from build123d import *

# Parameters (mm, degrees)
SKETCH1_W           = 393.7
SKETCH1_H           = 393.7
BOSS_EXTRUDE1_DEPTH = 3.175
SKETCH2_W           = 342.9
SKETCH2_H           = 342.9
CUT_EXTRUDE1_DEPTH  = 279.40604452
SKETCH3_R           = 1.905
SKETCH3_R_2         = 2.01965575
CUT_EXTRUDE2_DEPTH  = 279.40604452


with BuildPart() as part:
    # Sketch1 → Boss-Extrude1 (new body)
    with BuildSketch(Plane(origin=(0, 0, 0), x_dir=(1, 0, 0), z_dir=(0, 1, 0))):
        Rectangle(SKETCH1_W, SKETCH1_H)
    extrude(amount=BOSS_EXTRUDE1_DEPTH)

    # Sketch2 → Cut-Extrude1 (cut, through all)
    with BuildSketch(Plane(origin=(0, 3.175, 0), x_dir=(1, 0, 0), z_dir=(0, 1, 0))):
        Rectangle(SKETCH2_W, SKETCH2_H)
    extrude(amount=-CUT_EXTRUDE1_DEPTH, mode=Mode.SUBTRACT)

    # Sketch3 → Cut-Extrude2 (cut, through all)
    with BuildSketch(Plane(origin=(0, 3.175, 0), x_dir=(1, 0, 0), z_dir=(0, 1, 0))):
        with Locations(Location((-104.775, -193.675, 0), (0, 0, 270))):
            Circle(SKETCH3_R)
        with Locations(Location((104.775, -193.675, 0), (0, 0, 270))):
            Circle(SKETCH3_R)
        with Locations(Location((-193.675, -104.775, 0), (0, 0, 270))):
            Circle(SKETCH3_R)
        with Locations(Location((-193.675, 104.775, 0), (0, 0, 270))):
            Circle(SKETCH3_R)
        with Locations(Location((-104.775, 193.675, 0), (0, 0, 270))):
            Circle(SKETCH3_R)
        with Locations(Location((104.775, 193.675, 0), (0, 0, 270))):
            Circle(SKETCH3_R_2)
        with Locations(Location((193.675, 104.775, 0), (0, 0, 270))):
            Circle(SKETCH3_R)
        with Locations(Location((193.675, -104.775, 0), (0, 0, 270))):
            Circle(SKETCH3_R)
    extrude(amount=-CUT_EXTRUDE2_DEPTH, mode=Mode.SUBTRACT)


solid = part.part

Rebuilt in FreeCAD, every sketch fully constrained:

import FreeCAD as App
import Part
import Sketcher

V = App.Vector
Q = App.Units.Quantity

doc = App.newDocument("Part")
body = doc.addObject("PartDesign::Body", "Body")

sketch1 = body.newObject("Sketcher::SketchObject", "Sketch")
sketch1.AttachmentSupport = (doc.getObject("XZ_Plane"), [""])
sketch1.MapMode = "FlatFace"
sketch1.addGeometry(Part.LineSegment(V(-197, -197, 0), V(-197, 197, 0)), False)
sketch1.addGeometry(Part.LineSegment(V(-197, 197, 0), V(197, 197, 0)), False)
sketch1.addGeometry(Part.LineSegment(V(197, 197, 0), V(197, -197, 0)), False)
sketch1.addGeometry(Part.LineSegment(V(197, -197, 0), V(-197, -197, 0)), False)
sketch1.addConstraint(Sketcher.Constraint("Coincident", 0, 2, 1, 1))
sketch1.addConstraint(Sketcher.Constraint("Coincident", 1, 2, 2, 1))
sketch1.addConstraint(Sketcher.Constraint("Coincident", 2, 2, 3, 1))
sketch1.addConstraint(Sketcher.Constraint("Coincident", 3, 2, 0, 1))
sketch1.addConstraint(Sketcher.Constraint("Vertical", 0))
sketch1.addConstraint(Sketcher.Constraint("Horizontal", 1))
sketch1.addConstraint(Sketcher.Constraint("Vertical", 2))
sketch1.addConstraint(Sketcher.Constraint("Horizontal", 3))
sketch1.addConstraint(Sketcher.Constraint("Symmetric", 0, 2, 2, 2, -1, 1))
sketch1.addConstraint(Sketcher.Constraint("Equal", 3, 0))
sketch1.addConstraint(Sketcher.Constraint("DistanceX", 1, 1, 1, 2, Q("15.5 in")))
pad1 = body.newObject("PartDesign::Pad", "Pad")
pad1.Profile = sketch1
pad1.Length = Q("0.125 in")
pad1.Reversed = True

sketch2 = body.newObject("Sketcher::SketchObject", "Sketch001")
sketch2.AttachmentSupport = (doc.getObject("XZ_Plane"), [""])
sketch2.MapMode = "FlatFace"
sketch2.AttachmentOffset = App.Placement(V(0, 0, -0.125 * 25.4), App.Rotation())
sketch2.addGeometry(Part.LineSegment(V(-171, -171, 0), V(-171, 171, 0)), False)
sketch2.addGeometry(Part.LineSegment(V(-171, 171, 0), V(171, 171, 0)), False)
sketch2.addGeometry(Part.LineSegment(V(171, 171, 0), V(171, -171, 0)), False)
sketch2.addGeometry(Part.LineSegment(V(171, -171, 0), V(-171, -171, 0)), False)
sketch2.addConstraint(Sketcher.Constraint("Coincident", 0, 2, 1, 1))
sketch2.addConstraint(Sketcher.Constraint("Coincident", 1, 2, 2, 1))
sketch2.addConstraint(Sketcher.Constraint("Coincident", 2, 2, 3, 1))
sketch2.addConstraint(Sketcher.Constraint("Coincident", 3, 2, 0, 1))
sketch2.addConstraint(Sketcher.Constraint("Vertical", 0))
sketch2.addConstraint(Sketcher.Constraint("Horizontal", 1))
sketch2.addConstraint(Sketcher.Constraint("Vertical", 2))
sketch2.addConstraint(Sketcher.Constraint("Horizontal", 3))
sketch2.addConstraint(Sketcher.Constraint("Symmetric", 0, 2, 2, 2, -1, 1))
sketch2.addConstraint(Sketcher.Constraint("Equal", 3, 0))
sketch2.addConstraint(Sketcher.Constraint("DistanceX", 1, 1, 1, 2, Q("13.5 in")))
pocket1 = body.newObject("PartDesign::Pocket", "Pocket")
pocket1.Profile = sketch2
pocket1.Type = "ThroughAll"
pocket1.Reversed = True

sketch3 = body.newObject("Sketcher::SketchObject", "Sketch002")
sketch3.AttachmentSupport = (doc.getObject("XZ_Plane"), [""])
sketch3.MapMode = "FlatFace"
sketch3.AttachmentOffset = App.Placement(V(0, 0, -0.125 * 25.4), App.Rotation())
sketch3.addGeometry(Part.Circle(V(-104.8, 193.7, 0), V(0, 0, 1), 1.9), False)
sketch3.addGeometry(Part.Circle(V(104.8, 193.7, 0), V(0, 0, 1), 1.9), False)
sketch3.addGeometry(Part.Circle(V(-193.7, 104.8, 0), V(0, 0, 1), 1.9), False)
sketch3.addGeometry(Part.Circle(V(-193.7, -104.8, 0), V(0, 0, 1), 1.9), False)
sketch3.addGeometry(Part.Circle(V(-104.8, -193.7, 0), V(0, 0, 1), 1.9), False)
sketch3.addGeometry(Part.Circle(V(104.8, -193.7, 0), V(0, 0, 1), 2), False)
sketch3.addGeometry(Part.Circle(V(193.7, -104.8, 0), V(0, 0, 1), 1.9), False)
sketch3.addGeometry(Part.Circle(V(193.7, 104.8, 0), V(0, 0, 1), 1.9), False)
sketch3.addConstraint(Sketcher.Constraint("Equal", 0, 1))
sketch3.addConstraint(Sketcher.Constraint("Equal", 1, 2))
sketch3.addConstraint(Sketcher.Constraint("Equal", 2, 3))
sketch3.addConstraint(Sketcher.Constraint("Equal", 3, 4))
sketch3.addConstraint(Sketcher.Constraint("Equal", 4, 6))
sketch3.addConstraint(Sketcher.Constraint("Equal", 6, 7))
sketch3.addConstraint(Sketcher.Constraint("Symmetric", 1, 3, 4, 3, -1, 1))
sketch3.addConstraint(Sketcher.Constraint("Symmetric", 0, 3, 5, 3, -1, 1))
sketch3.addConstraint(Sketcher.Constraint("Symmetric", 2, 3, 6, 3, -1, 1))
sketch3.addConstraint(Sketcher.Constraint("Symmetric", 3, 3, 7, 3, -1, 1))
sketch3.addConstraint(Sketcher.Constraint("Symmetric", 0, 3, 1, 3, -2))
sketch3.addConstraint(Sketcher.Constraint("Symmetric", 3, 3, 6, 3, -2))
sketch3.addConstraint(Sketcher.Constraint("Diameter", 0, Q("0.15 in")))
sketch3.addConstraint(Sketcher.Constraint("DistanceX", 2, 3, 0, 3, Q("3.5 in")))
sketch3.addConstraint(Sketcher.Constraint("DistanceY", 2, 3, 0, 3, Q("3.5 in")))
sketch3.addConstraint(Sketcher.Constraint("DistanceX", 0, 3, 1, 3, Q("8.25 in")))
sketch3.addConstraint(Sketcher.Constraint("DistanceY", 3, 3, 2, 3, Q("8.25 in")))
sketch3.addConstraint(Sketcher.Constraint("Diameter", 5, Q("4.039312 mm")))
pocket2 = body.newObject("PartDesign::Pocket", "Pocket001")
pocket2.Profile = sketch3
pocket2.Type = "ThroughAll"
pocket2.Reversed = True

doc.recompute()
